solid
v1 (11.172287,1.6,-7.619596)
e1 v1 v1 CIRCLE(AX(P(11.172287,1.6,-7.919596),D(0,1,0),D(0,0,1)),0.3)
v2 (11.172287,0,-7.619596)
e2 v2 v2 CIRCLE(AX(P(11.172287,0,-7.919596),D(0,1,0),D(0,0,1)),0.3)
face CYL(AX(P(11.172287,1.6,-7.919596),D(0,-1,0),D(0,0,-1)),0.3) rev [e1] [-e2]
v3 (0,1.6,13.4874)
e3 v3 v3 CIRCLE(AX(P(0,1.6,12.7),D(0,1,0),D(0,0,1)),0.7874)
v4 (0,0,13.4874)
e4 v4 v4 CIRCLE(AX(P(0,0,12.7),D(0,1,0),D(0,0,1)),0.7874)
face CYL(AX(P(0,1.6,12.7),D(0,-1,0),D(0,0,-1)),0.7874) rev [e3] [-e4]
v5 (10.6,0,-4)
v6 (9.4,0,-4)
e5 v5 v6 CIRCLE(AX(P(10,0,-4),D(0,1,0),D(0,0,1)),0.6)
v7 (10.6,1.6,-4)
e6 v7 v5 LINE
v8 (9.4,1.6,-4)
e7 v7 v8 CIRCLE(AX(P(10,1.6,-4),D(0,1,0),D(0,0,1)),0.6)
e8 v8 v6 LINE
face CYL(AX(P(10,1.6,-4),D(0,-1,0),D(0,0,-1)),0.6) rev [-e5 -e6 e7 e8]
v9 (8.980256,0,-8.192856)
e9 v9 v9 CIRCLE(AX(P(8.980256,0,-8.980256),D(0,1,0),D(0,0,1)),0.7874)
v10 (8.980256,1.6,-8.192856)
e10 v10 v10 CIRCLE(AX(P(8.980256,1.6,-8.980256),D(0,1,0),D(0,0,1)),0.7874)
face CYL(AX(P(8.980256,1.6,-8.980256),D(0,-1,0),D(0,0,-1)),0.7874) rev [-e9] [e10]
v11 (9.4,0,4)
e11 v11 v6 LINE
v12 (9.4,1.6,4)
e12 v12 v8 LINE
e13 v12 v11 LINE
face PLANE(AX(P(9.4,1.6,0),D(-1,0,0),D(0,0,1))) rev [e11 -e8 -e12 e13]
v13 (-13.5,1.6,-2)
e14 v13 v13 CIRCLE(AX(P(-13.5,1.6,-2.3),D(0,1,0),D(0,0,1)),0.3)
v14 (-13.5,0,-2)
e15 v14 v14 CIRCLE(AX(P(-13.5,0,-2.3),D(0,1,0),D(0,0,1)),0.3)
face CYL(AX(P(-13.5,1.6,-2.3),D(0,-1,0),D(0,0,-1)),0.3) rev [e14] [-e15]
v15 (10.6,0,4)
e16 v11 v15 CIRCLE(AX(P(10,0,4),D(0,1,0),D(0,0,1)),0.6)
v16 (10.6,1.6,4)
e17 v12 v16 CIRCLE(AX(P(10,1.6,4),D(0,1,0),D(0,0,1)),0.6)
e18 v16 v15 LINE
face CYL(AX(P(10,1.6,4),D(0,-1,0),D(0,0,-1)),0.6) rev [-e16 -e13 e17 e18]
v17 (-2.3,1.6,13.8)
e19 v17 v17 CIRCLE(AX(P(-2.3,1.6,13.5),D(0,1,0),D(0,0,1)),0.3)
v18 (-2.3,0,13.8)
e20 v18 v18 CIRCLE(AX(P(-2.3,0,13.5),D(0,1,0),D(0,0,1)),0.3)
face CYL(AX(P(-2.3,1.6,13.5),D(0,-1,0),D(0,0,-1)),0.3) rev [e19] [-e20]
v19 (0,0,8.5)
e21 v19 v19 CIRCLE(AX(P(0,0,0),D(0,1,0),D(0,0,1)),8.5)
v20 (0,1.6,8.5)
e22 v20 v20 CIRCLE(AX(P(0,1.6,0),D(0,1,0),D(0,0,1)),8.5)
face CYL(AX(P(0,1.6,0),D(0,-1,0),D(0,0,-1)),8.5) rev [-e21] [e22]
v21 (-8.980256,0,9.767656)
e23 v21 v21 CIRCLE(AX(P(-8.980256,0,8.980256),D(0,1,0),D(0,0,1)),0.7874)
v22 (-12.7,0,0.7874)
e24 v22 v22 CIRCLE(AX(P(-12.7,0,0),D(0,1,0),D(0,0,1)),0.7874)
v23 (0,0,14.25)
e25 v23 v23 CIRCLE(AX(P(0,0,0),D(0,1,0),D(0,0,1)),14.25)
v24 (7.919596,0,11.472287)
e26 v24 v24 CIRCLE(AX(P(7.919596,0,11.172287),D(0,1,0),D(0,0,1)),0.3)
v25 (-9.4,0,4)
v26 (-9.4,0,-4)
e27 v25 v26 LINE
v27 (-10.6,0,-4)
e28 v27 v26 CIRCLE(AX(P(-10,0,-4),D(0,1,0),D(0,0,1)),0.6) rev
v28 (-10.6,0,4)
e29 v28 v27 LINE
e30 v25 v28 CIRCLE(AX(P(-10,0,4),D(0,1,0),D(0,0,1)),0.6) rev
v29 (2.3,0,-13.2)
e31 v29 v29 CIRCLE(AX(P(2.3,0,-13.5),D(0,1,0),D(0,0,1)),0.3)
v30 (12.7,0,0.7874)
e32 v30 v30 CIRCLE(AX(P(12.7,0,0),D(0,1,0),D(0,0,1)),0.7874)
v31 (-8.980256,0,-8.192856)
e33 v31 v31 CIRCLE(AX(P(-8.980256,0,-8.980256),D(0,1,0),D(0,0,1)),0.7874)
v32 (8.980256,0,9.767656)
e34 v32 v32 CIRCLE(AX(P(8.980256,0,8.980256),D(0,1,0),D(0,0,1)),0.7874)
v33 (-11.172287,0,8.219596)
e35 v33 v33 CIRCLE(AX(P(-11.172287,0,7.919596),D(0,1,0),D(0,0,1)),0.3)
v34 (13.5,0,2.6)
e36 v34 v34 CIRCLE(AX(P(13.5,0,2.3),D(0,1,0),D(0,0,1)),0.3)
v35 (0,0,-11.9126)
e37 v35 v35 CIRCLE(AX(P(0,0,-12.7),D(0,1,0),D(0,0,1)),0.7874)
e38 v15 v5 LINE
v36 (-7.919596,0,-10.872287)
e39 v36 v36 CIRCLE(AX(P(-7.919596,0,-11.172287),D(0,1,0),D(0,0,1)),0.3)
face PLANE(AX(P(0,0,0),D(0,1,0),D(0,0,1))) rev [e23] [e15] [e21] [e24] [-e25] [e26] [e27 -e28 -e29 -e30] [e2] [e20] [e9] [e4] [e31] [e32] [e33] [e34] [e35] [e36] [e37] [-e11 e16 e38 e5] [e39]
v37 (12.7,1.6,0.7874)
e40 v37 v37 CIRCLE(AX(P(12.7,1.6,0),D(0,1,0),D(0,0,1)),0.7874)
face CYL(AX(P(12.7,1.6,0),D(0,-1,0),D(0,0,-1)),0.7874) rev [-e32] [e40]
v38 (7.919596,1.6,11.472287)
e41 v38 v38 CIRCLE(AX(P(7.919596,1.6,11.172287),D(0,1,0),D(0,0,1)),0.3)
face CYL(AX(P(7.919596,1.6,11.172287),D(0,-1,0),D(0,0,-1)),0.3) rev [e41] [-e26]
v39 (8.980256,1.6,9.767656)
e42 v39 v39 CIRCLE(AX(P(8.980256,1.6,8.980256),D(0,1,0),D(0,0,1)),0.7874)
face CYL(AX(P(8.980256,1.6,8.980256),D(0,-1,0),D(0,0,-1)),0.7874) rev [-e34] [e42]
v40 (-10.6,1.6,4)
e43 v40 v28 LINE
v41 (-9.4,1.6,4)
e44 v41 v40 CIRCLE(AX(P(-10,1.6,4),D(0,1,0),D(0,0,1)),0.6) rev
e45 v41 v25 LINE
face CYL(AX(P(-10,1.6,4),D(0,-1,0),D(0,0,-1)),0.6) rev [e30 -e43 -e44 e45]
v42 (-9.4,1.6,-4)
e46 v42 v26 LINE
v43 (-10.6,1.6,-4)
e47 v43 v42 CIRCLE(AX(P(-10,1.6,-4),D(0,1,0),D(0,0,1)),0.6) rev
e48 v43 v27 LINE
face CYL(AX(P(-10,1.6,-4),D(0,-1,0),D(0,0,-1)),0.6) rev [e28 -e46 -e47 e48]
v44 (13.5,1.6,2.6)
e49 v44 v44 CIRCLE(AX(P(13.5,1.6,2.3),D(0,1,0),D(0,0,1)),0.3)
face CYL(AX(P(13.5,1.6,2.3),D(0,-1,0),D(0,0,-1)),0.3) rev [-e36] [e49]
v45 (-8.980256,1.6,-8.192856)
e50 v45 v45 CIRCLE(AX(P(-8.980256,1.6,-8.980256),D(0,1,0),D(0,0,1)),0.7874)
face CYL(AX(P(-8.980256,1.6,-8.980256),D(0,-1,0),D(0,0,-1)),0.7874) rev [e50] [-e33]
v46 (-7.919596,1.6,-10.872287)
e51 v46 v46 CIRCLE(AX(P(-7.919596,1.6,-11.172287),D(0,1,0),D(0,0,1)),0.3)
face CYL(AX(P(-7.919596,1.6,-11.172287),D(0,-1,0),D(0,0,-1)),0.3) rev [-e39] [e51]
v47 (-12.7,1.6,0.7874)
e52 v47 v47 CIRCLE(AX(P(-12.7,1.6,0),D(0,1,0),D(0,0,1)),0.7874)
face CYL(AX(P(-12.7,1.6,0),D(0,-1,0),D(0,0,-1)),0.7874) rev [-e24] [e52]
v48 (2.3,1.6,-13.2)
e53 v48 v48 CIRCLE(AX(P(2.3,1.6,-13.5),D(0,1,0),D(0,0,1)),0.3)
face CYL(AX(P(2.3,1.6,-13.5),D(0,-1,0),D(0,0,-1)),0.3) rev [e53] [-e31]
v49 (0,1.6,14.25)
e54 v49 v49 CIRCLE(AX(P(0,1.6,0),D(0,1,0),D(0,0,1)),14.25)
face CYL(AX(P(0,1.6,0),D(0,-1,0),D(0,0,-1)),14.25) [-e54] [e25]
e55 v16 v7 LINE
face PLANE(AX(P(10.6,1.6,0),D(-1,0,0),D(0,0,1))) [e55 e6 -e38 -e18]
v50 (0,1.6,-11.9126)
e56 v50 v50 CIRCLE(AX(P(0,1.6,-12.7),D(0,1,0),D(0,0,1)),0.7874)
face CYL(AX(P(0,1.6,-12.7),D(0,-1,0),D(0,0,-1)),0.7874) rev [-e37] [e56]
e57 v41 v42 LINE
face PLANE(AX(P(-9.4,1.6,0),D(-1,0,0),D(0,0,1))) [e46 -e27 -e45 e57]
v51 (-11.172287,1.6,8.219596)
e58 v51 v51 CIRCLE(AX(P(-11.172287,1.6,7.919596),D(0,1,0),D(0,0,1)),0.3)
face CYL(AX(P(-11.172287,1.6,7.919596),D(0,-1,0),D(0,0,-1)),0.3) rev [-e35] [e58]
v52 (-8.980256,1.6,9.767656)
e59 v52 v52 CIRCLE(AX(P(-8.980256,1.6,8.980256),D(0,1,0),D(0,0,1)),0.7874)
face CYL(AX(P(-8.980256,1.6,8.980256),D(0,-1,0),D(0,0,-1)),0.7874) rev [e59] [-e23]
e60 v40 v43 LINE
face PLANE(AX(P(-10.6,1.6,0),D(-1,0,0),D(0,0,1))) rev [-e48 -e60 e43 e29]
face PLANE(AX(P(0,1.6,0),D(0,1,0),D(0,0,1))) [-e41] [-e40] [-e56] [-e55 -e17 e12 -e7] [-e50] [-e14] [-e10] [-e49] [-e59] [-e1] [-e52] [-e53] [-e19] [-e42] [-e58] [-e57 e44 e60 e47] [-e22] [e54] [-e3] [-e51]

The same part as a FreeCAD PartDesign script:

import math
import FreeCAD as App
import Part
import Sketcher

doc = App.newDocument("Part")
body = doc.addObject("PartDesign::Body", "Body")

# Sketch on XZ plane
sketch1 = doc.addObject("Sketcher::SketchObject", "Sketch")
body.addObject(sketch1)
sketch1.AttachmentSupport = (doc.XZ_Plane, [""])
sketch1.MapMode = "FlatFace"
sketch1.addGeometry([
    Part.Circle(App.Vector(0, 0, 0), App.Vector(0, 0, 1), 14.25),  # 0
    Part.Circle(App.Vector(-7.92, -11.17, 0), App.Vector(0, 0, 1), 0.3),  # 1
    Part.Circle(App.Vector(-8.98, -8.98, 0), App.Vector(0, 0, 1), 0.79),  # 2
    Part.Circle(App.Vector(-13.5, -2.3, 0), App.Vector(0, 0, 1), 0.3),  # 3
    Part.Circle(App.Vector(0, -12.7, 0), App.Vector(0, 0, 1), 0.79),  # 4
    Part.Circle(App.Vector(-12.7, 0, 0), App.Vector(0, 0, 1), 0.79),  # 5
    Part.ArcOfCircle(Part.Circle(App.Vector(-10, -4, 0), App.Vector(0, 0, 1), 0.6), math.radians(180), math.radians(360)),  # 6
    Part.LineSegment(App.Vector(-9.4, -4, 0), App.Vector(-9.4, 4, 0)),  # 7
    Part.ArcOfCircle(Part.Circle(App.Vector(-10, 4, 0), App.Vector(0, 0, 1), 0.6), math.radians(0), math.radians(180)),  # 8
    Part.LineSegment(App.Vector(-10.6, 4, 0), App.Vector(-10.6, -4, 0)),  # 9
    Part.Circle(App.Vector(-11.17, 7.92, 0), App.Vector(0, 0, 1), 0.3),  # 10
    Part.Circle(App.Vector(-8.98, 8.98, 0), App.Vector(0, 0, 1), 0.79),  # 11
    Part.Circle(App.Vector(-2.3, 13.5, 0), App.Vector(0, 0, 1), 0.3),  # 12
    Part.Circle(App.Vector(2.3, -13.5, 0), App.Vector(0, 0, 1), 0.3),  # 13
    Part.Circle(App.Vector(8.98, -8.98, 0), App.Vector(0, 0, 1), 0.79),  # 14
    Part.Circle(App.Vector(11.17, -7.92, 0), App.Vector(0, 0, 1), 0.3),  # 15
    Part.LineSegment(App.Vector(10.6, -4, 0), App.Vector(10.6, 4, 0)),  # 16
    Part.ArcOfCircle(Part.Circle(App.Vector(10, 4, 0), App.Vector(0, 0, 1), 0.6), math.radians(0), math.radians(180)),  # 17
    Part.LineSegment(App.Vector(9.4, 4, 0), App.Vector(9.4, -4, 0)),  # 18
    Part.ArcOfCircle(Part.Circle(App.Vector(10, -4, 0), App.Vector(0, 0, 1), 0.6), math.radians(180), math.radians(360)),  # 19
    Part.Circle(App.Vector(12.7, 0, 0), App.Vector(0, 0, 1), 0.79),  # 20
    Part.Circle(App.Vector(0, 0, 0), App.Vector(0, 0, 1), 8.5),  # 21
    Part.Circle(App.Vector(0, 12.7, 0), App.Vector(0, 0, 1), 0.79),  # 22
    Part.Circle(App.Vector(13.5, 2.3, 0), App.Vector(0, 0, 1), 0.3),  # 23
    Part.Circle(App.Vector(8.98, 8.98, 0), App.Vector(0, 0, 1), 0.79),  # 24
    Part.Circle(App.Vector(7.92, 11.17, 0), App.Vector(0, 0, 1), 0.3),  # 25
], False)
sketch1.addConstraint([
    Sketcher.Constraint("Tangent", 6, 2, 7, 1),
    Sketcher.Constraint("Tangent", 7, 2, 8, 1),
    Sketcher.Constraint("Tangent", 8, 2, 9, 1),
    Sketcher.Constraint("Tangent", 9, 2, 6, 1),
    Sketcher.Constraint("Tangent", 16, 2, 17, 1),
    Sketcher.Constraint("Tangent", 17, 2, 18, 1),
    Sketcher.Constraint("Tangent", 18, 2, 19, 1),
    Sketcher.Constraint("Tangent", 19, 2, 16, 1),
    Sketcher.Constraint("Vertical", 7),
    Sketcher.Constraint("Vertical", 9),
    Sketcher.Constraint("Vertical", 16),
    Sketcher.Constraint("Vertical", 18),
    Sketcher.Constraint("Coincident", 0, 3, -1, 1),
    Sketcher.Constraint("Coincident", 21, 3, -1, 1),
    Sketcher.Constraint("Equal", 1, 3),
    Sketcher.Constraint("Equal", 2, 4),
    Sketcher.Constraint("Equal", 4, 5),
    Sketcher.Constraint("Equal", 3, 10),
    Sketcher.Constraint("Equal", 5, 11),
    Sketcher.Constraint("Equal", 10, 12),
    Sketcher.Constraint("Equal", 12, 13),
    Sketcher.Constraint("Equal", 11, 14),
    Sketcher.Constraint("Equal", 13, 15),
    Sketcher.Constraint("Equal", 8, 17),
    Sketcher.Constraint("Equal", 14, 20),
    Sketcher.Constraint("Equal", 20, 22),
    Sketcher.Constraint("Equal", 15, 23),
    Sketcher.Constraint("Equal", 22, 24),
    Sketcher.Constraint("Equal", 23, 25),
    Sketcher.Constraint("Symmetric", 12, 3, 13, 3, -1, 1),
    Sketcher.Constraint("Symmetric", 11, 3, 14, 3, -1, 1),
    Sketcher.Constraint("Symmetric", 10, 3, 15, 3, -1, 1),
    Sketcher.Constraint("Symmetric", 6, 3, 17, 3, -1, 1),
    Sketcher.Constraint("Symmetric", 5, 3, 20, 3, -1, 1),
    Sketcher.Constraint("Symmetric", 4, 3, 22, 3, -1, 1),
    Sketcher.Constraint("Symmetric", 3, 3, 23, 3, -1, 1),
    Sketcher.Constraint("Symmetric", 2, 3, 24, 3, -1, 1),
    Sketcher.Constraint("Symmetric", 1, 3, 25, 3, -1, 1),
    Sketcher.Constraint("Symmetric", 2, 3, 14, 3, -2),
    Sketcher.Constraint("PointOnObject", 4, 3, -2),
    Sketcher.Constraint("PointOnObject", 5, 3, -1),
    Sketcher.Constraint("Horizontal", 8, 3, 17, 3),
    Sketcher.Constraint("Horizontal", 6, 3, 19, 3),
    Sketcher.Constraint("Diameter", 21, 17.0),
    Sketcher.Constraint("Diameter", 0, 28.5),
    Sketcher.Constraint("Diameter", 1, 0.6),
    Sketcher.Constraint("Radius", 6, 0.6),
    Sketcher.Constraint("DistanceY", 7, 1, 7, 2, 8.0),
    Sketcher.Constraint("DistanceX", 6, 3, -1, 1, 10.0),
    Sketcher.Constraint("Diameter", 2, 1.5748),
    Sketcher.Constraint("DistanceX", 3, 3, -1, 1, 13.5),
    Sketcher.Constraint("DistanceY", 3, 3, -1, 1, 2.3),
    Sketcher.Constraint("DistanceY", 4, 3, -1, 1, 12.7),
    Sketcher.Constraint("DistanceX", 5, 3, -1, 1, 12.7),
    Sketcher.Constraint("DistanceX", 12, 3, -1, 1, 2.3),
    Sketcher.Constraint("DistanceY", -1, 1, 12, 3, 13.5),
    Sketcher.Constraint("DistanceX", 2, 3, 1, 3, 1.06066),
    Sketcher.Constraint("DistanceY", 1, 3, 2, 3, 2.192031),
    Sketcher.Constraint("DistanceX", 10, 3, 11, 3, 2.192031),
    Sketcher.Constraint("DistanceY", 10, 3, 11, 3, 1.06066),
    Sketcher.Constraint("DistanceX", 1, 3, -1, 1, 7.919596),
    Sketcher.Constraint("DistanceY", 1, 3, -1, 1, 11.172287),
])
pad1 = doc.addObject("PartDesign::Pad", "Pad")
body.addObject(pad1)
pad1.Profile = sketch1
pad1.Length = 1.6
pad1.Reversed = True

doc.recompute()
